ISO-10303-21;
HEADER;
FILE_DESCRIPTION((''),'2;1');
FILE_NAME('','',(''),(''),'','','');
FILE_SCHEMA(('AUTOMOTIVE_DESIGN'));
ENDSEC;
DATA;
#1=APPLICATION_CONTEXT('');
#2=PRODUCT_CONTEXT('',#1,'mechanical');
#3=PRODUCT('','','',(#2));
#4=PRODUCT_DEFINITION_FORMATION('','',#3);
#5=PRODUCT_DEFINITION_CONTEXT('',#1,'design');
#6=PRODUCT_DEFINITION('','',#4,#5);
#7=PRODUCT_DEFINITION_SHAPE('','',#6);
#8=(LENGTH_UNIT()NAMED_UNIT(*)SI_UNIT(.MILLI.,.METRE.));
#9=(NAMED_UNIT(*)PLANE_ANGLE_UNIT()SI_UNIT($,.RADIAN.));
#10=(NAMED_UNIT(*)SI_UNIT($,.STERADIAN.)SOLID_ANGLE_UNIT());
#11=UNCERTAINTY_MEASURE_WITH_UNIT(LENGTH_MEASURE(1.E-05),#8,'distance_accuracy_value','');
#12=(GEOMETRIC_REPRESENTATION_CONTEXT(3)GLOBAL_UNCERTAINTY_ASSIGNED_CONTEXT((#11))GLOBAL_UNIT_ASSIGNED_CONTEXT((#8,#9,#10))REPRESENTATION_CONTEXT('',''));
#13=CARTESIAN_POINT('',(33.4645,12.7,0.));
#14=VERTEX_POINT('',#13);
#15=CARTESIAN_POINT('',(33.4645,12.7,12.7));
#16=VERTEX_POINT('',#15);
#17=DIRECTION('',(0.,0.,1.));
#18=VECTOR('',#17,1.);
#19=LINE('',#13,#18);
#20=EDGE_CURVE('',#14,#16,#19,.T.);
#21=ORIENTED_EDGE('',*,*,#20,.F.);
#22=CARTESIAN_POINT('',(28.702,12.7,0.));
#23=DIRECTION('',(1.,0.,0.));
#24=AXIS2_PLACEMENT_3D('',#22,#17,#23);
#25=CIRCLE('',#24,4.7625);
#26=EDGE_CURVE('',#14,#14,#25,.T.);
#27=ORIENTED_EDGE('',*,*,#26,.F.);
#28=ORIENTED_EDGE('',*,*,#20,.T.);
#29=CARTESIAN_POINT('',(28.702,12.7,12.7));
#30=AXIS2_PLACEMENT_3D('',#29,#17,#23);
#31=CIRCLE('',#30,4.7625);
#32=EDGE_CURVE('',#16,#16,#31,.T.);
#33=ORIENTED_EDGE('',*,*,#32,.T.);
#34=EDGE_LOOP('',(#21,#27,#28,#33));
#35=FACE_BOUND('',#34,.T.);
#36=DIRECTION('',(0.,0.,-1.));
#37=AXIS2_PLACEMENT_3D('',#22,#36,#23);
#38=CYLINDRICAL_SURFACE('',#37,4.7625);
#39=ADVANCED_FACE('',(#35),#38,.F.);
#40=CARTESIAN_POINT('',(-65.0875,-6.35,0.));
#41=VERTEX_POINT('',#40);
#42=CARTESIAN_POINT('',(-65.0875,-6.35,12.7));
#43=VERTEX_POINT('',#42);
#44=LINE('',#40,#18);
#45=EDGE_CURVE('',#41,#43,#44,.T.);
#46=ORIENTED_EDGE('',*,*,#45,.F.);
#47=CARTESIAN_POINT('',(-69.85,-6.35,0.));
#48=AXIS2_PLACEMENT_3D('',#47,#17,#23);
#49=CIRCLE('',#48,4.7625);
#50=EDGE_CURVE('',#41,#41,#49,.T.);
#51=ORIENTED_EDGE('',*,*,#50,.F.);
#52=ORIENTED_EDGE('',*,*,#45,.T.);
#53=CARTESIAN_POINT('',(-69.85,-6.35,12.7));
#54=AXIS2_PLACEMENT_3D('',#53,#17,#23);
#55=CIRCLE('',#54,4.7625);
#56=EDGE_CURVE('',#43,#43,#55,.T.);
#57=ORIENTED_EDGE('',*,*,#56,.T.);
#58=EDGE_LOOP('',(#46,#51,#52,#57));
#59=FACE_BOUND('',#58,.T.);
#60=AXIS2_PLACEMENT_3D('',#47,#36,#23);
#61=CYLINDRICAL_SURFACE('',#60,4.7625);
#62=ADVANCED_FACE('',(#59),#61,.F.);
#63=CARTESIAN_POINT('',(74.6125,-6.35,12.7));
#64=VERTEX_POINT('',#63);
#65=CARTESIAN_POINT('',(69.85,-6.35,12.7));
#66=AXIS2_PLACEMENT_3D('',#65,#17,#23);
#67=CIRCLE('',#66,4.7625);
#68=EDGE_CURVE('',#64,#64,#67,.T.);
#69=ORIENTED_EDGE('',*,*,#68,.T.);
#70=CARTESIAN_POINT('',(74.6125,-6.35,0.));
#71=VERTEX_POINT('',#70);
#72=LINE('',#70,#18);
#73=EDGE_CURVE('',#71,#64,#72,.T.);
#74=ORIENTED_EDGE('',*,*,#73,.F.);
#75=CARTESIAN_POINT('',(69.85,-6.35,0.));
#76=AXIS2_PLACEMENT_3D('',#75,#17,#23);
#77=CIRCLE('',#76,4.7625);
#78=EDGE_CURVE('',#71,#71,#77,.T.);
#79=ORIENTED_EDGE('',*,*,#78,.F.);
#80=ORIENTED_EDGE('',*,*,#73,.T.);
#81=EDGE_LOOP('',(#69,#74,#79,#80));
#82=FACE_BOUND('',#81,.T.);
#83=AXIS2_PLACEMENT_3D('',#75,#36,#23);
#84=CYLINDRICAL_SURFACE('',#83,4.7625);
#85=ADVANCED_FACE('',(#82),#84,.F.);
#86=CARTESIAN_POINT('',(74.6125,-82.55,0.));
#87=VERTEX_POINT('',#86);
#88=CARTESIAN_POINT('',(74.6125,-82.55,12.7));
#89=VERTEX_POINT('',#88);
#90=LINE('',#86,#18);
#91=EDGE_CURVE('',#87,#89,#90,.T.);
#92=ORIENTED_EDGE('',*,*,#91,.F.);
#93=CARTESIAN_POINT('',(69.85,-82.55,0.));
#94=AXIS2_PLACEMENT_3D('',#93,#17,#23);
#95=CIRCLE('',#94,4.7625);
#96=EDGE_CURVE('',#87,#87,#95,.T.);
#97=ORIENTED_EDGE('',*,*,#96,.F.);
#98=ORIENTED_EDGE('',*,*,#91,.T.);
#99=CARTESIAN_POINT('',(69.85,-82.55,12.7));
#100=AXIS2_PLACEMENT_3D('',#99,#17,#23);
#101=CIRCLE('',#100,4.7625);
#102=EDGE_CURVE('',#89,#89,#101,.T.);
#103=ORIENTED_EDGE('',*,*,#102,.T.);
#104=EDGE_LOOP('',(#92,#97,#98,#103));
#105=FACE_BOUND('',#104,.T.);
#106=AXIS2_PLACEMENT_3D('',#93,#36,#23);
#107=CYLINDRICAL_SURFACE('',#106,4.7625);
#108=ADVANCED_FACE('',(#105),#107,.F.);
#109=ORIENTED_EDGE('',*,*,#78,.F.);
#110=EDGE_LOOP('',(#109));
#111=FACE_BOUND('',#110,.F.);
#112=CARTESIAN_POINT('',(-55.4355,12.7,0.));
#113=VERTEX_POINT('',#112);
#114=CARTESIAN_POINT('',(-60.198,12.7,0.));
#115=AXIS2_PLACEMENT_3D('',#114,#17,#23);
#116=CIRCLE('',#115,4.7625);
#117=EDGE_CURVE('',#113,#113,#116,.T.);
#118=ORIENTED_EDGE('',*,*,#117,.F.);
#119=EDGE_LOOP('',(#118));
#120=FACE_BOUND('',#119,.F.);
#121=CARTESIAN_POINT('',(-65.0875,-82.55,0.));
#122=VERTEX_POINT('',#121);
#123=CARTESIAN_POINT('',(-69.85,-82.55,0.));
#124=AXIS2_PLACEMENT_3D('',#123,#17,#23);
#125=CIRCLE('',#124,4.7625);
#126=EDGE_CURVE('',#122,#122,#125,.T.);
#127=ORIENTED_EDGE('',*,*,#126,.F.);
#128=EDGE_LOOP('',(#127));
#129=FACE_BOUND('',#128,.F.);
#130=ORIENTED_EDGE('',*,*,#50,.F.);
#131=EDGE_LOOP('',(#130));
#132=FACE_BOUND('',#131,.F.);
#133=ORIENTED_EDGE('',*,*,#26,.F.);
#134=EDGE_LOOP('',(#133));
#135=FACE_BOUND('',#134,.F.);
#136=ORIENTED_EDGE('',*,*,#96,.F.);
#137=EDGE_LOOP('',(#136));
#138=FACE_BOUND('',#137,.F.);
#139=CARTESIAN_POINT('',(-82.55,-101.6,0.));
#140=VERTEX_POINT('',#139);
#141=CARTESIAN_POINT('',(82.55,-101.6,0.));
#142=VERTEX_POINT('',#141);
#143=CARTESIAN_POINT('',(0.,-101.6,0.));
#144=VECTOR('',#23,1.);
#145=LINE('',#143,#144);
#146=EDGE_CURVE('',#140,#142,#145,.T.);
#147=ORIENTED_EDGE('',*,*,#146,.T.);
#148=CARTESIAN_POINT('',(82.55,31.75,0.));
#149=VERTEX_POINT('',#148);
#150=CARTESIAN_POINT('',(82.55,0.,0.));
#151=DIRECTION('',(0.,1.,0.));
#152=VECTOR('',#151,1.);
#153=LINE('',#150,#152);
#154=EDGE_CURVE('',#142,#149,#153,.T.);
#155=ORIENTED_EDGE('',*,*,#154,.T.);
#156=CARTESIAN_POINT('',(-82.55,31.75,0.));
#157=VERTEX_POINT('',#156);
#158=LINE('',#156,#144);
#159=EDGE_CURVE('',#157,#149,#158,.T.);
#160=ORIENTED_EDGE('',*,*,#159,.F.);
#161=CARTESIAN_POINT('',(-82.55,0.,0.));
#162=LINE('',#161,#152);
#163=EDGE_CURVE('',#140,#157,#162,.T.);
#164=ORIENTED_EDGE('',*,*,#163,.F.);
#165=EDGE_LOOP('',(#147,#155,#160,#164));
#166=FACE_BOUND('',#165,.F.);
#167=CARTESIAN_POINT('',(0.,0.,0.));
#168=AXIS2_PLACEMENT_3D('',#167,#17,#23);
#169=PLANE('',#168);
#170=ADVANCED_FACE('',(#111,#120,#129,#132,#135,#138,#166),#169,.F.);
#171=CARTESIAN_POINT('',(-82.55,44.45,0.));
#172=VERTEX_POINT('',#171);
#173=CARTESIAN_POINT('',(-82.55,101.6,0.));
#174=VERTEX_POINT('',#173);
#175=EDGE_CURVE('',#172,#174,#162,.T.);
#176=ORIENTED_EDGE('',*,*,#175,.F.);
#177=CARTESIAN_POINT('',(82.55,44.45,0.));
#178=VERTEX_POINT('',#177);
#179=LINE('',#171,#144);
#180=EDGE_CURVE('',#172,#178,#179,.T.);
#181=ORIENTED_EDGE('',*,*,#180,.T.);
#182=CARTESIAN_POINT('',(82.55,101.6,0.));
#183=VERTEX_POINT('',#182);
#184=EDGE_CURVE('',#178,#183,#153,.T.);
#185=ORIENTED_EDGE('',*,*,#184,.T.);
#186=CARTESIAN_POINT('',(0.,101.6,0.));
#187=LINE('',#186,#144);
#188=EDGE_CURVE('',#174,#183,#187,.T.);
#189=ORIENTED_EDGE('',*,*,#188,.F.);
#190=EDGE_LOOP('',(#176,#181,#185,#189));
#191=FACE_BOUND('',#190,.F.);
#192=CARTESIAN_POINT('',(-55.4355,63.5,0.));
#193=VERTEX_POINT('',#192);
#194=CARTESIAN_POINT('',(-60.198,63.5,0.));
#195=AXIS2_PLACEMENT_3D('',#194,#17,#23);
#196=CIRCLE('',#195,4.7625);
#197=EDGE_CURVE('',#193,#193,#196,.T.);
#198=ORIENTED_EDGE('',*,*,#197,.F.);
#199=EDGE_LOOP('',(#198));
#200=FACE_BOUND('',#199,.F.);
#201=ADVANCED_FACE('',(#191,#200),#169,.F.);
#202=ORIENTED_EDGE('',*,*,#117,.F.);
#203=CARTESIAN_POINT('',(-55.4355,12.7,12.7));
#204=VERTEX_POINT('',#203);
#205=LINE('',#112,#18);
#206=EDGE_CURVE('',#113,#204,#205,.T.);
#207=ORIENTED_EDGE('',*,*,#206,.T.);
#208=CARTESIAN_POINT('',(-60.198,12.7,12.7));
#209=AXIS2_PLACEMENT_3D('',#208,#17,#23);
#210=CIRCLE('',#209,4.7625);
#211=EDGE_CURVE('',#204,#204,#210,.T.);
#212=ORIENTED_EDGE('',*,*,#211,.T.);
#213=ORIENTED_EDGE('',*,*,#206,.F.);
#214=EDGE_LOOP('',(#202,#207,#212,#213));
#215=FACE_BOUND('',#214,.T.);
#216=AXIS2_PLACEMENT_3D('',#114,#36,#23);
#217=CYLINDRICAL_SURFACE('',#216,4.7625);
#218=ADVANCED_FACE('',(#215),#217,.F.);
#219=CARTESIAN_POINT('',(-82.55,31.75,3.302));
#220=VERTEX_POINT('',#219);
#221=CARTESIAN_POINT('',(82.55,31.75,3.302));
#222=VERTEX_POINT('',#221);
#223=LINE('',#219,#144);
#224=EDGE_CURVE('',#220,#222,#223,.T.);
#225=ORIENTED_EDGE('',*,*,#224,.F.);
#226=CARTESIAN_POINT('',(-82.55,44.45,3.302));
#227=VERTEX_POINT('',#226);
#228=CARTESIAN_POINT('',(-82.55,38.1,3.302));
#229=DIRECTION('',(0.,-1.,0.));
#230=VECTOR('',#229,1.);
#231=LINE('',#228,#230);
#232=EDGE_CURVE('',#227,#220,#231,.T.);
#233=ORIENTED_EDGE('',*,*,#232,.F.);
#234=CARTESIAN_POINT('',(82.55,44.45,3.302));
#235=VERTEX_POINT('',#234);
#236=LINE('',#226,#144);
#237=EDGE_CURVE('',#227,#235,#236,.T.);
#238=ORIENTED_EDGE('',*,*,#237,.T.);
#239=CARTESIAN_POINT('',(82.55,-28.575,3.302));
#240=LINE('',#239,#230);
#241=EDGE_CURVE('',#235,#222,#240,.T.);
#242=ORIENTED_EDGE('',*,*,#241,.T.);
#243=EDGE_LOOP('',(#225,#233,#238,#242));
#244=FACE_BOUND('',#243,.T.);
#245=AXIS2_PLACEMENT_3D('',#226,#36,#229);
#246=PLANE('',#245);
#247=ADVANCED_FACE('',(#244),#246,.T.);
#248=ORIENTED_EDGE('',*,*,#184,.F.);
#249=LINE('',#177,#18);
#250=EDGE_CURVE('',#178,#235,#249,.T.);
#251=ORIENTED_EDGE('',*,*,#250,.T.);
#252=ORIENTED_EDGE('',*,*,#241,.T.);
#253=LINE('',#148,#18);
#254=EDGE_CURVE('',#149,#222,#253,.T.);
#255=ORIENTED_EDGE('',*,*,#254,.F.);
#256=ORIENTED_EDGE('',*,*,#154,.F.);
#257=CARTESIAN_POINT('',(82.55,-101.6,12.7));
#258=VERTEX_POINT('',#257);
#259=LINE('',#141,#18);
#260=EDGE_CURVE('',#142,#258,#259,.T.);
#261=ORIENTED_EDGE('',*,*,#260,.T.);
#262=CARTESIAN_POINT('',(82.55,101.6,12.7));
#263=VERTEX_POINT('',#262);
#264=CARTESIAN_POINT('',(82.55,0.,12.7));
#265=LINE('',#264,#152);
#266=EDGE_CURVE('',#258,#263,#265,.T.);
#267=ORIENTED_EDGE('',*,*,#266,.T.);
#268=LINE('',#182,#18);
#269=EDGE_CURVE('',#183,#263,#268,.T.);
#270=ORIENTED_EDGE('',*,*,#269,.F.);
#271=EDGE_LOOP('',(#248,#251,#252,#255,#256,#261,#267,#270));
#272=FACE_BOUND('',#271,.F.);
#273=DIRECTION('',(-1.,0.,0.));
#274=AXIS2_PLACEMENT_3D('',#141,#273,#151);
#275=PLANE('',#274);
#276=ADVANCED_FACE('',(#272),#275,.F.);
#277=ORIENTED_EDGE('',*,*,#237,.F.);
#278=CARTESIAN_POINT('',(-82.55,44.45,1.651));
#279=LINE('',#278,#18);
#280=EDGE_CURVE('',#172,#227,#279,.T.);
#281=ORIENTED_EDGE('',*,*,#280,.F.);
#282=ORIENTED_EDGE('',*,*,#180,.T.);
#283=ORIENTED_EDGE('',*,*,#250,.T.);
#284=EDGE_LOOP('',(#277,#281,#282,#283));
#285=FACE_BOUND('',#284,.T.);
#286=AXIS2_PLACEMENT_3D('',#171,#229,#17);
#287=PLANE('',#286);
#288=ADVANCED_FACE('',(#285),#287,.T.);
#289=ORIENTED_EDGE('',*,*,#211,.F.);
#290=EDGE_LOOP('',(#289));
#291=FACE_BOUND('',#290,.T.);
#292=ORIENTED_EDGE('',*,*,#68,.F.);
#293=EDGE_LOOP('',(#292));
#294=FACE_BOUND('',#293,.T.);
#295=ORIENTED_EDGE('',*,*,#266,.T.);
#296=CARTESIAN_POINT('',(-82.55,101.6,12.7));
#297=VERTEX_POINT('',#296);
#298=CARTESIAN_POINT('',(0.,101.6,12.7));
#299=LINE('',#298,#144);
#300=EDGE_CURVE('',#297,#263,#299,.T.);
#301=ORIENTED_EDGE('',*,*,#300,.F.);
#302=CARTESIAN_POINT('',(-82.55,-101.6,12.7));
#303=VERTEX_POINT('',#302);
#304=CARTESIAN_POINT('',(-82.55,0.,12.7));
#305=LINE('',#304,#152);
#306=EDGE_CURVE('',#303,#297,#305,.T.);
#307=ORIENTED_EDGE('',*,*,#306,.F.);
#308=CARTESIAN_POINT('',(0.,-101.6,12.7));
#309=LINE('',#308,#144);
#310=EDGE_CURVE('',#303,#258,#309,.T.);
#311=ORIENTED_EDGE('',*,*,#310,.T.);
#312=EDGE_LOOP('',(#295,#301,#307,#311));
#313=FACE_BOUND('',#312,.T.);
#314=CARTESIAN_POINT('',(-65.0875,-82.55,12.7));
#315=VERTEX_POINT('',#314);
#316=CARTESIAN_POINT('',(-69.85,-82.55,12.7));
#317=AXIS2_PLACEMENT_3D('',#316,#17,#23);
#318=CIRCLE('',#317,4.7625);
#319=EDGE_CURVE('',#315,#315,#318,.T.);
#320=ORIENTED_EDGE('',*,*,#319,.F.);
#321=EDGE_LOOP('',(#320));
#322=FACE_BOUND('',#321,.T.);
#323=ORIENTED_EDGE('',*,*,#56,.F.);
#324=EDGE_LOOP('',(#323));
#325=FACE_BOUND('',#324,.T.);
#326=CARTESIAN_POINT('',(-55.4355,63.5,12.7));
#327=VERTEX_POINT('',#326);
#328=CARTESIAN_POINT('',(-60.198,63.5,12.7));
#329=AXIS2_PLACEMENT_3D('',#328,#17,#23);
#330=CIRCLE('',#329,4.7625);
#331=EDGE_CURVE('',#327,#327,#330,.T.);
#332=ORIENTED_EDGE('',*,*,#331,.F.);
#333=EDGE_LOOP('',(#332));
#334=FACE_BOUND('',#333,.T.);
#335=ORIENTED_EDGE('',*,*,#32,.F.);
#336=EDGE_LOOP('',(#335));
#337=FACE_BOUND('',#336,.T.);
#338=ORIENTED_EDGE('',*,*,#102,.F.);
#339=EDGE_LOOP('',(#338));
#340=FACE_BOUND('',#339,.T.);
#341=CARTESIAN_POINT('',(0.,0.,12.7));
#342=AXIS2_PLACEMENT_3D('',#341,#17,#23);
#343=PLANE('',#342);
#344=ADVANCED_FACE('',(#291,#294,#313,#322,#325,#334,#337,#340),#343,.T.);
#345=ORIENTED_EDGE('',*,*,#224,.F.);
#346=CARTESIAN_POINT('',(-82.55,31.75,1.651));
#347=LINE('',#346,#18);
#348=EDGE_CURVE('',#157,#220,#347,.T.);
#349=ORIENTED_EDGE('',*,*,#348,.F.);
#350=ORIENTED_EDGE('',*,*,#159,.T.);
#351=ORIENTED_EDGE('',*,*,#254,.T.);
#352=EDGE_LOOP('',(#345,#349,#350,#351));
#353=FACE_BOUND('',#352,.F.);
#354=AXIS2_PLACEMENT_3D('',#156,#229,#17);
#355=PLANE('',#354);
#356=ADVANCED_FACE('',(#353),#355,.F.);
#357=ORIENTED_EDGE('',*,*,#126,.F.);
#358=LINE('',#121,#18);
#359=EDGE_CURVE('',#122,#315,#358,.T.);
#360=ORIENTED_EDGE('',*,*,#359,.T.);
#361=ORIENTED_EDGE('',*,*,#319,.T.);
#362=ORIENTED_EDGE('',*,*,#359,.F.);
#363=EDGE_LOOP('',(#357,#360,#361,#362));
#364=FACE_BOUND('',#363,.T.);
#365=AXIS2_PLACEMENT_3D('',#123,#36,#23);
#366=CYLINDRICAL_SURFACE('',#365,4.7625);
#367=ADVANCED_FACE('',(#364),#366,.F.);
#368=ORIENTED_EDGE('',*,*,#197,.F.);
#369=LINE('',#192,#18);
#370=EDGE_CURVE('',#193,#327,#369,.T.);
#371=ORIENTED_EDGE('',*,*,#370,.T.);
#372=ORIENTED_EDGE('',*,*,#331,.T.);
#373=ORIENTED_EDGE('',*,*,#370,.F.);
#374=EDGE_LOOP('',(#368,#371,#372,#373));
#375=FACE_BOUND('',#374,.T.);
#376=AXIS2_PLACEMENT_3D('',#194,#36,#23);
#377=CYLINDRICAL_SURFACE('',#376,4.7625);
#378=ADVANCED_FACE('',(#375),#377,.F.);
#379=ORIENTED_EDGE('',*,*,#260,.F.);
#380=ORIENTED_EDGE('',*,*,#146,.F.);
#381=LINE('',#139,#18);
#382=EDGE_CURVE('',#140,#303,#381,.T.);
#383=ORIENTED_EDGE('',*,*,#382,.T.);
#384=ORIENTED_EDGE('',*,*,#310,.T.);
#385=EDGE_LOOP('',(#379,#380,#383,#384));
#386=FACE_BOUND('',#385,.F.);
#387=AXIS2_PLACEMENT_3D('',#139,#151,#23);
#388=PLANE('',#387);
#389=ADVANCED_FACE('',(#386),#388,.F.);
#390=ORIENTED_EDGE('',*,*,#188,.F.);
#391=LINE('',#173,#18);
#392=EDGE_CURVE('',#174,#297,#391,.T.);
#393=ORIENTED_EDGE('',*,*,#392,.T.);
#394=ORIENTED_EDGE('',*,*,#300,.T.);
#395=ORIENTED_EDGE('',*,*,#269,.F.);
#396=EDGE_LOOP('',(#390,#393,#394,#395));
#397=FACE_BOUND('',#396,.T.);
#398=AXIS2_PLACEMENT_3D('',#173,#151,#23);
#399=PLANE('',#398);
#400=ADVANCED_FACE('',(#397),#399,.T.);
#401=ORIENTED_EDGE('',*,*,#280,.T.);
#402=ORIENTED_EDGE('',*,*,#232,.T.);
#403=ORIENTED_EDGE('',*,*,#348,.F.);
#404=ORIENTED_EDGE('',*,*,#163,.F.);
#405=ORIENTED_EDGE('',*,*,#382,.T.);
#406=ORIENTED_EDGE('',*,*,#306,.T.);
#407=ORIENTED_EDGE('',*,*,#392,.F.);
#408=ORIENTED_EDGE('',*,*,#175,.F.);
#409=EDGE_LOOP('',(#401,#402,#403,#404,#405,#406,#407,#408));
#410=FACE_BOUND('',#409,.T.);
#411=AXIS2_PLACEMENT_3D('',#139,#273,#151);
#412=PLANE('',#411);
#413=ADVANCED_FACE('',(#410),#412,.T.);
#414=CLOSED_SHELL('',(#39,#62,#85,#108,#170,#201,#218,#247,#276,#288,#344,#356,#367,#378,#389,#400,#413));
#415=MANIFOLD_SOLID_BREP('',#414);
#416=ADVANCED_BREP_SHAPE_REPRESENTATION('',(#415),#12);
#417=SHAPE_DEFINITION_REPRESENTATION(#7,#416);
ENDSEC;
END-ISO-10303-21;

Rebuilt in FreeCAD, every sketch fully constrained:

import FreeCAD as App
import Part
import Sketcher
Q = App.Units.Quantity

doc = App.newDocument("Part")
body = doc.addObject("PartDesign::Body", "Body")

sketch1 = doc.addObject("Sketcher::SketchObject", "Sketch")
body.addObject(sketch1)
sketch1.AttachmentSupport = (doc.XY_Plane, [""])
sketch1.MapMode = "FlatFace"
sketch1.addGeometry([
    Part.LineSegment(App.Vector(-82.55, 101.6, 0), App.Vector(-82.55, -101.6, 0)),
    Part.LineSegment(App.Vector(-82.55, -101.6, 0), App.Vector(82.55, -101.6, 0)),
    Part.LineSegment(App.Vector(82.55, -101.6, 0), App.Vector(82.55, 101.6, 0)),
    Part.LineSegment(App.Vector(82.55, 101.6, 0), App.Vector(-82.55, 101.6, 0)),
    Part.Circle(App.Vector(-69.85, -82.55, 0), App.Vector(0, 0, 1), 4.7625),
    Part.Circle(App.Vector(69.85, -82.55, 0), App.Vector(0, 0, 1), 4.7625),
    Part.Circle(App.Vector(-69.85, -6.35, 0), App.Vector(0, 0, 1), 4.7625),
    Part.Circle(App.Vector(-60.198, 12.7, 0), App.Vector(0, 0, 1), 4.7625),
    Part.Circle(App.Vector(-60.198, 63.5, 0), App.Vector(0, 0, 1), 4.7625),
    Part.Circle(App.Vector(28.702, 12.7, 0), App.Vector(0, 0, 1), 4.7625),
    Part.Circle(App.Vector(69.85, -6.35, 0), App.Vector(0, 0, 1), 4.7625),
], False)
sketch1.addConstraint([
    Sketcher.Constraint("Coincident", 0, 2, 1, 1),
    Sketcher.Constraint("Coincident", 1, 2, 2, 1),
    Sketcher.Constraint("Coincident", 2, 2, 3, 1),
    Sketcher.Constraint("Coincident", 3, 2, 0, 1),
    Sketcher.Constraint("Vertical", 0),
    Sketcher.Constraint("Horizontal", 1),
    Sketcher.Constraint("Vertical", 2),
    Sketcher.Constraint("Horizontal", 3),
    Sketcher.Constraint("Equal", 4, 5),
    Sketcher.Constraint("Equal", 5, 6),
    Sketcher.Constraint("Equal", 6, 7),
    Sketcher.Constraint("Equal", 7, 8),
    Sketcher.Constraint("Equal", 8, 9),
    Sketcher.Constraint("Equal", 9, 10),
    Sketcher.Constraint("Symmetric", 0, 2, 2, 2, -1, 1),
    Sketcher.Constraint("Symmetric", 4, 3, 5, 3, -2),
    Sketcher.Constraint("Symmetric", 6, 3, 10, 3, -2),
    Sketcher.Constraint("Horizontal", 7, 3, 9, 3),
    Sketcher.Constraint("Vertical", 4, 3, 6, 3),
    Sketcher.Constraint("Vertical", 7, 3, 8, 3),
    Sketcher.Constraint("DistanceY", 0, 2, 0, 1, Q("8 in")),
    Sketcher.Constraint("Diameter", 4, Q("0.375 in")),
    Sketcher.Constraint("DistanceX", 1, 1, 1, 2, Q("6.5 in")),
    Sketcher.Constraint("DistanceY", 4, 3, 6, 3, Q("3 in")),
    Sketcher.Constraint("DistanceY", 7, 3, 8, 3, Q("2 in")),
    Sketcher.Constraint("DistanceX", 0, 2, 5, 3, Q("6 in")),
    Sketcher.Constraint("DistanceY", -1, 1, 7, 3, Q("0.5 in")),
    Sketcher.Constraint("DistanceX", 7, 3, 9, 3, Q("3.5 in")),
    Sketcher.Constraint("DistanceY", 4, 3, -1, 1, Q("3.25 in")),
    Sketcher.Constraint("DistanceX", 7, 3, -1, 1, Q("2.37 in")),
])
pad1 = doc.addObject("PartDesign::Pad", "Pad")
body.addObject(pad1)
pad1.Profile = sketch1
pad1.Length = Q("0.5 in")

sketch2 = doc.addObject("Sketcher::SketchObject", "Sketch001")
body.addObject(sketch2)
sketch2.AttachmentSupport = (doc.YZ_Plane, [""])
sketch2.MapMode = "FlatFace"
sketch2.AttachmentOffset = App.Placement(App.Vector(0, 0, -3.25 * 25.4), App.Rotation())
sketch2.addGeometry([
    Part.LineSegment(App.Vector(44.45, 3.302, 0), App.Vector(44.45, 0, 0)),
    Part.LineSegment(App.Vector(44.45, 0, 0), App.Vector(31.75, 0, 0)),
    Part.LineSegment(App.Vector(31.75, 0, 0), App.Vector(31.75, 3.302, 0)),
    Part.LineSegment(App.Vector(31.75, 3.302, 0), App.Vector(44.45, 3.302, 0)),
], False)
sketch2.addConstraint([
    Sketcher.Constraint("Coincident", 0, 2, 1, 1),
    Sketcher.Constraint("Coincident", 1, 2, 2, 1),
    Sketcher.Constraint("Coincident", 2, 2, 3, 1),
    Sketcher.Constraint("Coincident", 3, 2, 0, 1),
    Sketcher.Constraint("Vertical", 0),
    Sketcher.Constraint("Horizontal", 1),
    Sketcher.Constraint("Vertical", 2),
    Sketcher.Constraint("Horizontal", 3),
    Sketcher.Constraint("PointOnObject", 0, 2, -1),
    Sketcher.Constraint("DistanceX", 1, 2, 1, 1, Q("0.5 in")),
    Sketcher.Constraint("DistanceY", 0, 2, 0, 1, Q("0.13 in")),
    Sketcher.Constraint("DistanceX", -1, 1, 0, 2, Q("1.75 in")),
])
pocket1 = doc.addObject("PartDesign::Pocket", "Pocket")
body.addObject(pocket1)
pocket1.Profile = sketch2
pocket1.Type = "ThroughAll"
pocket1.Reversed = True

doc.recompute()
